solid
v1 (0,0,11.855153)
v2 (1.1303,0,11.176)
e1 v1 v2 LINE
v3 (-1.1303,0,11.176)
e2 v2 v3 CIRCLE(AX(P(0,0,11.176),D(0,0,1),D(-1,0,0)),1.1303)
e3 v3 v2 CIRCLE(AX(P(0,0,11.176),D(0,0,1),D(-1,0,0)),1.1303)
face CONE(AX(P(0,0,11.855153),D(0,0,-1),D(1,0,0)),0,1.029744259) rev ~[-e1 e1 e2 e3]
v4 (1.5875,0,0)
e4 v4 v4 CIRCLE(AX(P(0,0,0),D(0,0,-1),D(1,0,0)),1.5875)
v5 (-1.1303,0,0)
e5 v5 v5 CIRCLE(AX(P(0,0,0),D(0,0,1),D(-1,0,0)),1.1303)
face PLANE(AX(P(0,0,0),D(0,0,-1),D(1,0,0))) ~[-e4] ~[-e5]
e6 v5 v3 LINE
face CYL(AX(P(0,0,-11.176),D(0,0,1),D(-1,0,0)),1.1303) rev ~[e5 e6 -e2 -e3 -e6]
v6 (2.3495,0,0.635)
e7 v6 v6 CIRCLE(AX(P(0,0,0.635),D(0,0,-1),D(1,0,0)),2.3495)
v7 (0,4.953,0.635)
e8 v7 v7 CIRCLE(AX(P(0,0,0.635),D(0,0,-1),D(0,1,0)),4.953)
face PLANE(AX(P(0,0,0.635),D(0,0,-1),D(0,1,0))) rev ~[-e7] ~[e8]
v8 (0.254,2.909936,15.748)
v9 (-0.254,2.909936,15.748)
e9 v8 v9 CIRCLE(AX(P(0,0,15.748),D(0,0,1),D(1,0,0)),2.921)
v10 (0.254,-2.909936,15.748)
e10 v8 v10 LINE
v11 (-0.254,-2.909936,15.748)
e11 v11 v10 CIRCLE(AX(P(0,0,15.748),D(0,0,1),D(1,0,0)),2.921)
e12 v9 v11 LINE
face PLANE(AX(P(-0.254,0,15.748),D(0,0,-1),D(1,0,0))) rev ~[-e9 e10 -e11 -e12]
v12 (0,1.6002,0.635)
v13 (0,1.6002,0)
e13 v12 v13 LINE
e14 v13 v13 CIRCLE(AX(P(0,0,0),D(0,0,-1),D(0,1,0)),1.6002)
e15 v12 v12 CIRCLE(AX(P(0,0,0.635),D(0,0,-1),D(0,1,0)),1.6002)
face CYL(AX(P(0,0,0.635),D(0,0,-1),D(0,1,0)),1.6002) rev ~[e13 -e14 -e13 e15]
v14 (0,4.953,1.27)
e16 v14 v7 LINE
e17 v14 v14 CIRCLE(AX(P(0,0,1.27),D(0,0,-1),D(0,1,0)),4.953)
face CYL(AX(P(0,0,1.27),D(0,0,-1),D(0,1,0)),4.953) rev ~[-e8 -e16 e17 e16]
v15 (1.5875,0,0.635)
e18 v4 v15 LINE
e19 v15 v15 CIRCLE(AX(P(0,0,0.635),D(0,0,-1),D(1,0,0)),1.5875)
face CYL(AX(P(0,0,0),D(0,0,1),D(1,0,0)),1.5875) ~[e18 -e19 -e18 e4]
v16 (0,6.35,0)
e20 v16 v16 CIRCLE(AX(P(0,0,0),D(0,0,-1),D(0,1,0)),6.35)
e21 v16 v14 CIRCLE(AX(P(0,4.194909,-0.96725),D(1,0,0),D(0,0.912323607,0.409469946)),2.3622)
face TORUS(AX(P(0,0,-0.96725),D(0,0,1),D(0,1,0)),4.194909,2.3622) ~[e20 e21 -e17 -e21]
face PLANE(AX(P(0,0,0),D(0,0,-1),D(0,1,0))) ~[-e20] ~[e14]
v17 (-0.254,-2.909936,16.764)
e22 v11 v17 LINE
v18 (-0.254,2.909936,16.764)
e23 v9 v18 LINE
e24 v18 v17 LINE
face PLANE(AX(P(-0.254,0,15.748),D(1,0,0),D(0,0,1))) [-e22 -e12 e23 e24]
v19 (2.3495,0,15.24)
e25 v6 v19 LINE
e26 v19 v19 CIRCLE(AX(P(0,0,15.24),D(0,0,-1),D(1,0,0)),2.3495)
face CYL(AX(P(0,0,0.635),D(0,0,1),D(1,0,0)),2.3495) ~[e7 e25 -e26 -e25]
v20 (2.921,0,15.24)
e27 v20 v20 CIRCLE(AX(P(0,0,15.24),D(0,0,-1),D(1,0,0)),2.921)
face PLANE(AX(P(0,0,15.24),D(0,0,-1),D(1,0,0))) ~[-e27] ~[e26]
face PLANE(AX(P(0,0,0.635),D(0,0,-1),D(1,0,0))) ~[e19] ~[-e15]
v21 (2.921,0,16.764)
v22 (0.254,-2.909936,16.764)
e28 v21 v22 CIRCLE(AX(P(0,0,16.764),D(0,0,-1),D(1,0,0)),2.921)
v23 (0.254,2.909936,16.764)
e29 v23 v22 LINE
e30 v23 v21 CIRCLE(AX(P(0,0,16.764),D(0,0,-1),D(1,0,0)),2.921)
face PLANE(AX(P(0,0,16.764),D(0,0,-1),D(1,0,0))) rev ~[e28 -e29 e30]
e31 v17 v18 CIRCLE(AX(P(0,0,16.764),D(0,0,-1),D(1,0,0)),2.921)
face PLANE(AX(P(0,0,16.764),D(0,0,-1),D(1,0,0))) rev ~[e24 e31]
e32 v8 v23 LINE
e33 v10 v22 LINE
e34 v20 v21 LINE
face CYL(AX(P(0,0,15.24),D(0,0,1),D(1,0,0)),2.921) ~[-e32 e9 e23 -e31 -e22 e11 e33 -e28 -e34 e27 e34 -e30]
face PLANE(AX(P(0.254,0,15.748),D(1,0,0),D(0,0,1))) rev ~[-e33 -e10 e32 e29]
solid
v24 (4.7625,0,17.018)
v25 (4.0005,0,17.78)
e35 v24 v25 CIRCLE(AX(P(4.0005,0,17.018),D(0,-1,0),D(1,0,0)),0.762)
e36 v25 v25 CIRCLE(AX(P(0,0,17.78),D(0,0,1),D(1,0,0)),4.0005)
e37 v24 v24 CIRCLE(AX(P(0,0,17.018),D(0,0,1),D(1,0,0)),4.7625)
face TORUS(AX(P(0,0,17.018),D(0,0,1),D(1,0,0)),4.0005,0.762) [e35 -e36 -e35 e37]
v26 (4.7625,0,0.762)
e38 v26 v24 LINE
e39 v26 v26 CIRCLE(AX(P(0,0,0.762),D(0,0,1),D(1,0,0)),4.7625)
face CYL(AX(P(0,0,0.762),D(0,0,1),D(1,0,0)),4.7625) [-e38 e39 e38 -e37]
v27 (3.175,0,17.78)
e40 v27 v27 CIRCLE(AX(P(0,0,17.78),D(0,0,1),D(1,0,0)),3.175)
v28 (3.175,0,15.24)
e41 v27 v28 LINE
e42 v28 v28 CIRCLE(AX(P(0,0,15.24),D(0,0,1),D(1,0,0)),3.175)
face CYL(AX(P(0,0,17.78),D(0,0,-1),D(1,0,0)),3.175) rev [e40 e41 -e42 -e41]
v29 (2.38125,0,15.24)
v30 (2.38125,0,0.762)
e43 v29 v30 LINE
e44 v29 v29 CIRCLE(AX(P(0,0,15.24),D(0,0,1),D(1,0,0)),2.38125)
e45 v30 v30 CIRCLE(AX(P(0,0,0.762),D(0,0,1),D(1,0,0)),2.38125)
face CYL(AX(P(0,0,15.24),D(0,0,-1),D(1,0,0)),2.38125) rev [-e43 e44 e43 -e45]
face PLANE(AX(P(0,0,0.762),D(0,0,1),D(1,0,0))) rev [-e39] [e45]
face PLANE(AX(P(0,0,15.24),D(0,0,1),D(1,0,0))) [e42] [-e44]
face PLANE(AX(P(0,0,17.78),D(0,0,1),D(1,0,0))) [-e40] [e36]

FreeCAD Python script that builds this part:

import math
import FreeCAD as App
import Part
import Sketcher

V = App.Vector
Q = App.Units.Quantity


def edges_at(feature, points):
    """Names of the edges that pass closest to the given points."""
    edges = feature.Shape.Edges
    near = lambda p: min(range(len(edges)), key=lambda i: edges[i].distToShape(Part.Vertex(*p))[0])
    return sorted({f"Edge{near(p) + 1}" for p in points})


def add_polygon(sketch, points):
    """Adds a closed chain of lines whose ends are joined by coincident constraints."""
    first, n = sketch.GeometryCount, len(points)
    for a, b in zip(points, points[1:] + points[:1]):
        sketch.addGeometry(Part.LineSegment(App.Vector(*a, 0), App.Vector(*b, 0)), False)
    for i in range(n):
        sketch.addConstraint(Sketcher.Constraint("Coincident", first + i, 2, first + (i + 1) % n, 1))

doc = App.newDocument("Part")
body = doc.addObject("PartDesign::Body", "Body")

sketch1 = body.newObject("Sketcher::SketchObject", "Sketch")
sketch1.AttachmentSupport = (doc.getObject("XZ_Plane"), [""])
sketch1.MapMode = "FlatFace"
add_polygon(sketch1, [(2.4, 15.2), (2.4, 0.8), (4.8, 0.8), (4.8, 17.8), (3.2, 17.8), (3.2, 15.2)])
sketch1.addConstraint(Sketcher.Constraint("Vertical", 0))
sketch1.addConstraint(Sketcher.Constraint("Horizontal", 1))
sketch1.addConstraint(Sketcher.Constraint("Vertical", 2))
sketch1.addConstraint(Sketcher.Constraint("Horizontal", 3))
sketch1.addConstraint(Sketcher.Constraint("Vertical", 4))
sketch1.addConstraint(Sketcher.Constraint("Horizontal", 5))
sketch1.addConstraint(Sketcher.Constraint("DistanceY", 4, 2, 4, 1, Q("0.1 in")))
sketch1.addConstraint(Sketcher.Constraint("DistanceY", 0, 2, 0, 1, Q("0.57 in")))
sketch1.addConstraint(Sketcher.Constraint("DistanceY", -1, 1, 2, 2, Q("0.7 in")))
sketch1.addConstraint(Sketcher.Constraint("DistanceX", 1, 1, 1, 2, Q("0.09375 in")))
sketch1.addConstraint(Sketcher.Constraint("DistanceX", 3, 2, 3, 1, Q("0.0625 in")))
sketch1.addConstraint(Sketcher.Constraint("DistanceX", -1, 1, 0, 2, Q("0.09375 in")))
revolution = body.newObject("PartDesign::Revolution", "Revolution")
revolution.Profile = sketch1
revolution.ReferenceAxis = (sketch1, ["V_Axis"])
revolution.Angle = 360
doc.recompute()

fillet = body.newObject("PartDesign::Fillet", "Fillet")
fillet.Base = (revolution, edges_at(revolution, [(-4.763, 0, 17.78)]))
fillet.Radius = Q("0.03 in")
body2 = doc.addObject("PartDesign::Body", "Body001")

sketch2 = body2.newObject("Sketcher::SketchObject", "Sketch001")
sketch2.AttachmentSupport = (doc.getObject("XZ_Plane001"), [""])
sketch2.MapMode = "FlatFace"
add_polygon(sketch2, [(0, 16.8), (0, 0), (1.6, 0), (1.6, 0.6), (2.3, 0.6), (2.3, 15.2), (2.9, 15.2), (2.9, 16.8)])
sketch2.addConstraint(Sketcher.Constraint("Vertical", 0))
sketch2.addConstraint(Sketcher.Constraint("Horizontal", 1))
sketch2.addConstraint(Sketcher.Constraint("Vertical", 2))
sketch2.addConstraint(Sketcher.Constraint("Horizontal", 3))
sketch2.addConstraint(Sketcher.Constraint("Vertical", 4))
sketch2.addConstraint(Sketcher.Constraint("Horizontal", 5))
sketch2.addConstraint(Sketcher.Constraint("Vertical", 6))
sketch2.addConstraint(Sketcher.Constraint("Horizontal", 7))
sketch2.addConstraint(Sketcher.Constraint("Coincident", 0, 2, -1, 1))
sketch2.addConstraint(Sketcher.Constraint("DistanceX", 3, 1, 3, 2, Q("0.03 in")))
sketch2.addConstraint(Sketcher.Constraint("DistanceY", 0, 2, 0, 1, Q("0.66 in")))
sketch2.addConstraint(Sketcher.Constraint("DistanceY", 6, 1, 6, 2, Q("0.06 in")))
sketch2.addConstraint(Sketcher.Constraint("DistanceX", 1, 1, 1, 2, Q("0.0625 in")))
sketch2.addConstraint(Sketcher.Constraint("DistanceX", 7, 2, 7, 1, Q("0.115 in")))
sketch2.addConstraint(Sketcher.Constraint("DistanceY", 2, 1, 2, 2, Q("0.025 in")))
revolution2 = body2.newObject("PartDesign::Revolution", "Revolution001")
revolution2.Profile = sketch2
revolution2.ReferenceAxis = (sketch2, ["V_Axis"])
revolution2.Angle = 360

sketch3 = body2.newObject("Sketcher::SketchObject", "Sketch002")
sketch3.AttachmentSupport = (doc.getObject("XZ_Plane001"), [""])
sketch3.MapMode = "FlatFace"
add_polygon(sketch3, [(-0.3, 17.8), (-0.3, 15.7), (0.3, 15.7), (0.3, 17.8)])
sketch3.addConstraint(Sketcher.Constraint("Vertical", 0))
sketch3.addConstraint(Sketcher.Constraint("Horizontal", 1))
sketch3.addConstraint(Sketcher.Constraint("Vertical", 2))
sketch3.addConstraint(Sketcher.Constraint("Horizontal", 3))
sketch3.addConstraint(Sketcher.Constraint("DistanceX", 1, 1, 1, 2, Q("0.02 in")))
sketch3.addConstraint(Sketcher.Constraint("DistanceY", 0, 2, 0, 1, Q("0.08 in")))
sketch3.addConstraint(Sketcher.Constraint("DistanceY", -1, 1, 2, 2, Q("0.7 in")))
sketch3.addConstraint(Sketcher.Constraint("DistanceX", 0, 2, -1, 1, Q("0.01 in")))
pocket1 = body2.newObject("PartDesign::Pocket", "Pocket")
pocket1.Profile = sketch3
pocket1.Length = Q("1 in")
pocket1.Midplane = True

sketch4 = body2.newObject("Sketcher::SketchObject", "Sketch003")
sketch4.AttachmentSupport = (doc.getObject("XY_Plane001"), [""])
sketch4.MapMode = "FlatFace"
sketch4.addGeometry(Part.Circle(V(0, 0, 0), V(0, 0, 1), 1.1), False)
sketch4.addConstraint(Sketcher.Constraint("Coincident", 0, 3, -1, 1))
sketch4.addConstraint(Sketcher.Constraint("Diameter", 0, Q("0.089 in")))
doc.recompute()
hole = body2.newObject("PartDesign::Hole", "Hole")
hole.Profile = sketch4
hole.ThreadType = "None"
hole.Diameter = Q("0.089 in")
hole.DepthType = "Dimension"
hole.Depth = Q("0.44 in")
hole.DrillPoint = "Angled"
hole.DrillPointAngle = 118
hole.Reversed = True

sketch5 = body2.newObject("Sketcher::SketchObject", "Sketch004")
sketch5.AttachmentSupport = (doc.getObject("YZ_Plane001"), [""])
sketch5.MapMode = "FlatFace"
sketch5.addGeometry(Part.LineSegment(V(5, 0.6, 0), V(1.6, 0.6, 0)), False)
sketch5.addGeometry(Part.LineSegment(V(1.6, 0.6, 0), V(1.6, 0, 0)), False)
sketch5.addGeometry(Part.LineSegment(V(1.6, 0, 0), V(6.3, 0, 0)), False)
sketch5.addGeometry(Part.ArcOfCircle(Part.Circle(V(4.2, -1, 0), V(0, 0, 1), 2.4), math.radians(24), math.radians(71)), False)
sketch5.addGeometry(Part.LineSegment(V(5, 1.3, 0), V(5, 0.6, 0)), False)
sketch5.addConstraint(Sketcher.Constraint("Coincident", 0, 2, 1, 1))
sketch5.addConstraint(Sketcher.Constraint("Coincident", 1, 2, 2, 1))
sketch5.addConstraint(Sketcher.Constraint("Coincident", 2, 2, 3, 1))
sketch5.addConstraint(Sketcher.Constraint("Coincident", 3, 2, 4, 1))
sketch5.addConstraint(Sketcher.Constraint("Coincident", 4, 2, 0, 1))
sketch5.addConstraint(Sketcher.Constraint("Horizontal", 0))
sketch5.addConstraint(Sketcher.Constraint("Vertical", 1))
sketch5.addConstraint(Sketcher.Constraint("Horizontal", 2))
sketch5.addConstraint(Sketcher.Constraint("Vertical", 4))
sketch5.addConstraint(Sketcher.Constraint("PointOnObject", 1, 2, -1))
sketch5.addConstraint(Sketcher.Constraint("Equal", 1, 4))
sketch5.addConstraint(Sketcher.Constraint("Radius", 3, Q("0.093 in")))
sketch5.addConstraint(Sketcher.Constraint("DistanceX", 0, 2, 0, 1, Q("0.132 in")))
sketch5.addConstraint(Sketcher.Constraint("DistanceX", 2, 1, 2, 2, Q("0.187 in")))
sketch5.addConstraint(Sketcher.Constraint("DistanceY", 1, 2, 1, 1, Q("0.025 in")))
sketch5.addConstraint(Sketcher.Constraint("DistanceX", -1, 1, 2, 2, Q("0.25 in")))
revolution3 = body2.newObject("PartDesign::Revolution", "Revolution002")
revolution3.Profile = sketch5
revolution3.ReferenceAxis = (sketch5, ["V_Axis"])
revolution3.Angle = 360

doc.recompute()
